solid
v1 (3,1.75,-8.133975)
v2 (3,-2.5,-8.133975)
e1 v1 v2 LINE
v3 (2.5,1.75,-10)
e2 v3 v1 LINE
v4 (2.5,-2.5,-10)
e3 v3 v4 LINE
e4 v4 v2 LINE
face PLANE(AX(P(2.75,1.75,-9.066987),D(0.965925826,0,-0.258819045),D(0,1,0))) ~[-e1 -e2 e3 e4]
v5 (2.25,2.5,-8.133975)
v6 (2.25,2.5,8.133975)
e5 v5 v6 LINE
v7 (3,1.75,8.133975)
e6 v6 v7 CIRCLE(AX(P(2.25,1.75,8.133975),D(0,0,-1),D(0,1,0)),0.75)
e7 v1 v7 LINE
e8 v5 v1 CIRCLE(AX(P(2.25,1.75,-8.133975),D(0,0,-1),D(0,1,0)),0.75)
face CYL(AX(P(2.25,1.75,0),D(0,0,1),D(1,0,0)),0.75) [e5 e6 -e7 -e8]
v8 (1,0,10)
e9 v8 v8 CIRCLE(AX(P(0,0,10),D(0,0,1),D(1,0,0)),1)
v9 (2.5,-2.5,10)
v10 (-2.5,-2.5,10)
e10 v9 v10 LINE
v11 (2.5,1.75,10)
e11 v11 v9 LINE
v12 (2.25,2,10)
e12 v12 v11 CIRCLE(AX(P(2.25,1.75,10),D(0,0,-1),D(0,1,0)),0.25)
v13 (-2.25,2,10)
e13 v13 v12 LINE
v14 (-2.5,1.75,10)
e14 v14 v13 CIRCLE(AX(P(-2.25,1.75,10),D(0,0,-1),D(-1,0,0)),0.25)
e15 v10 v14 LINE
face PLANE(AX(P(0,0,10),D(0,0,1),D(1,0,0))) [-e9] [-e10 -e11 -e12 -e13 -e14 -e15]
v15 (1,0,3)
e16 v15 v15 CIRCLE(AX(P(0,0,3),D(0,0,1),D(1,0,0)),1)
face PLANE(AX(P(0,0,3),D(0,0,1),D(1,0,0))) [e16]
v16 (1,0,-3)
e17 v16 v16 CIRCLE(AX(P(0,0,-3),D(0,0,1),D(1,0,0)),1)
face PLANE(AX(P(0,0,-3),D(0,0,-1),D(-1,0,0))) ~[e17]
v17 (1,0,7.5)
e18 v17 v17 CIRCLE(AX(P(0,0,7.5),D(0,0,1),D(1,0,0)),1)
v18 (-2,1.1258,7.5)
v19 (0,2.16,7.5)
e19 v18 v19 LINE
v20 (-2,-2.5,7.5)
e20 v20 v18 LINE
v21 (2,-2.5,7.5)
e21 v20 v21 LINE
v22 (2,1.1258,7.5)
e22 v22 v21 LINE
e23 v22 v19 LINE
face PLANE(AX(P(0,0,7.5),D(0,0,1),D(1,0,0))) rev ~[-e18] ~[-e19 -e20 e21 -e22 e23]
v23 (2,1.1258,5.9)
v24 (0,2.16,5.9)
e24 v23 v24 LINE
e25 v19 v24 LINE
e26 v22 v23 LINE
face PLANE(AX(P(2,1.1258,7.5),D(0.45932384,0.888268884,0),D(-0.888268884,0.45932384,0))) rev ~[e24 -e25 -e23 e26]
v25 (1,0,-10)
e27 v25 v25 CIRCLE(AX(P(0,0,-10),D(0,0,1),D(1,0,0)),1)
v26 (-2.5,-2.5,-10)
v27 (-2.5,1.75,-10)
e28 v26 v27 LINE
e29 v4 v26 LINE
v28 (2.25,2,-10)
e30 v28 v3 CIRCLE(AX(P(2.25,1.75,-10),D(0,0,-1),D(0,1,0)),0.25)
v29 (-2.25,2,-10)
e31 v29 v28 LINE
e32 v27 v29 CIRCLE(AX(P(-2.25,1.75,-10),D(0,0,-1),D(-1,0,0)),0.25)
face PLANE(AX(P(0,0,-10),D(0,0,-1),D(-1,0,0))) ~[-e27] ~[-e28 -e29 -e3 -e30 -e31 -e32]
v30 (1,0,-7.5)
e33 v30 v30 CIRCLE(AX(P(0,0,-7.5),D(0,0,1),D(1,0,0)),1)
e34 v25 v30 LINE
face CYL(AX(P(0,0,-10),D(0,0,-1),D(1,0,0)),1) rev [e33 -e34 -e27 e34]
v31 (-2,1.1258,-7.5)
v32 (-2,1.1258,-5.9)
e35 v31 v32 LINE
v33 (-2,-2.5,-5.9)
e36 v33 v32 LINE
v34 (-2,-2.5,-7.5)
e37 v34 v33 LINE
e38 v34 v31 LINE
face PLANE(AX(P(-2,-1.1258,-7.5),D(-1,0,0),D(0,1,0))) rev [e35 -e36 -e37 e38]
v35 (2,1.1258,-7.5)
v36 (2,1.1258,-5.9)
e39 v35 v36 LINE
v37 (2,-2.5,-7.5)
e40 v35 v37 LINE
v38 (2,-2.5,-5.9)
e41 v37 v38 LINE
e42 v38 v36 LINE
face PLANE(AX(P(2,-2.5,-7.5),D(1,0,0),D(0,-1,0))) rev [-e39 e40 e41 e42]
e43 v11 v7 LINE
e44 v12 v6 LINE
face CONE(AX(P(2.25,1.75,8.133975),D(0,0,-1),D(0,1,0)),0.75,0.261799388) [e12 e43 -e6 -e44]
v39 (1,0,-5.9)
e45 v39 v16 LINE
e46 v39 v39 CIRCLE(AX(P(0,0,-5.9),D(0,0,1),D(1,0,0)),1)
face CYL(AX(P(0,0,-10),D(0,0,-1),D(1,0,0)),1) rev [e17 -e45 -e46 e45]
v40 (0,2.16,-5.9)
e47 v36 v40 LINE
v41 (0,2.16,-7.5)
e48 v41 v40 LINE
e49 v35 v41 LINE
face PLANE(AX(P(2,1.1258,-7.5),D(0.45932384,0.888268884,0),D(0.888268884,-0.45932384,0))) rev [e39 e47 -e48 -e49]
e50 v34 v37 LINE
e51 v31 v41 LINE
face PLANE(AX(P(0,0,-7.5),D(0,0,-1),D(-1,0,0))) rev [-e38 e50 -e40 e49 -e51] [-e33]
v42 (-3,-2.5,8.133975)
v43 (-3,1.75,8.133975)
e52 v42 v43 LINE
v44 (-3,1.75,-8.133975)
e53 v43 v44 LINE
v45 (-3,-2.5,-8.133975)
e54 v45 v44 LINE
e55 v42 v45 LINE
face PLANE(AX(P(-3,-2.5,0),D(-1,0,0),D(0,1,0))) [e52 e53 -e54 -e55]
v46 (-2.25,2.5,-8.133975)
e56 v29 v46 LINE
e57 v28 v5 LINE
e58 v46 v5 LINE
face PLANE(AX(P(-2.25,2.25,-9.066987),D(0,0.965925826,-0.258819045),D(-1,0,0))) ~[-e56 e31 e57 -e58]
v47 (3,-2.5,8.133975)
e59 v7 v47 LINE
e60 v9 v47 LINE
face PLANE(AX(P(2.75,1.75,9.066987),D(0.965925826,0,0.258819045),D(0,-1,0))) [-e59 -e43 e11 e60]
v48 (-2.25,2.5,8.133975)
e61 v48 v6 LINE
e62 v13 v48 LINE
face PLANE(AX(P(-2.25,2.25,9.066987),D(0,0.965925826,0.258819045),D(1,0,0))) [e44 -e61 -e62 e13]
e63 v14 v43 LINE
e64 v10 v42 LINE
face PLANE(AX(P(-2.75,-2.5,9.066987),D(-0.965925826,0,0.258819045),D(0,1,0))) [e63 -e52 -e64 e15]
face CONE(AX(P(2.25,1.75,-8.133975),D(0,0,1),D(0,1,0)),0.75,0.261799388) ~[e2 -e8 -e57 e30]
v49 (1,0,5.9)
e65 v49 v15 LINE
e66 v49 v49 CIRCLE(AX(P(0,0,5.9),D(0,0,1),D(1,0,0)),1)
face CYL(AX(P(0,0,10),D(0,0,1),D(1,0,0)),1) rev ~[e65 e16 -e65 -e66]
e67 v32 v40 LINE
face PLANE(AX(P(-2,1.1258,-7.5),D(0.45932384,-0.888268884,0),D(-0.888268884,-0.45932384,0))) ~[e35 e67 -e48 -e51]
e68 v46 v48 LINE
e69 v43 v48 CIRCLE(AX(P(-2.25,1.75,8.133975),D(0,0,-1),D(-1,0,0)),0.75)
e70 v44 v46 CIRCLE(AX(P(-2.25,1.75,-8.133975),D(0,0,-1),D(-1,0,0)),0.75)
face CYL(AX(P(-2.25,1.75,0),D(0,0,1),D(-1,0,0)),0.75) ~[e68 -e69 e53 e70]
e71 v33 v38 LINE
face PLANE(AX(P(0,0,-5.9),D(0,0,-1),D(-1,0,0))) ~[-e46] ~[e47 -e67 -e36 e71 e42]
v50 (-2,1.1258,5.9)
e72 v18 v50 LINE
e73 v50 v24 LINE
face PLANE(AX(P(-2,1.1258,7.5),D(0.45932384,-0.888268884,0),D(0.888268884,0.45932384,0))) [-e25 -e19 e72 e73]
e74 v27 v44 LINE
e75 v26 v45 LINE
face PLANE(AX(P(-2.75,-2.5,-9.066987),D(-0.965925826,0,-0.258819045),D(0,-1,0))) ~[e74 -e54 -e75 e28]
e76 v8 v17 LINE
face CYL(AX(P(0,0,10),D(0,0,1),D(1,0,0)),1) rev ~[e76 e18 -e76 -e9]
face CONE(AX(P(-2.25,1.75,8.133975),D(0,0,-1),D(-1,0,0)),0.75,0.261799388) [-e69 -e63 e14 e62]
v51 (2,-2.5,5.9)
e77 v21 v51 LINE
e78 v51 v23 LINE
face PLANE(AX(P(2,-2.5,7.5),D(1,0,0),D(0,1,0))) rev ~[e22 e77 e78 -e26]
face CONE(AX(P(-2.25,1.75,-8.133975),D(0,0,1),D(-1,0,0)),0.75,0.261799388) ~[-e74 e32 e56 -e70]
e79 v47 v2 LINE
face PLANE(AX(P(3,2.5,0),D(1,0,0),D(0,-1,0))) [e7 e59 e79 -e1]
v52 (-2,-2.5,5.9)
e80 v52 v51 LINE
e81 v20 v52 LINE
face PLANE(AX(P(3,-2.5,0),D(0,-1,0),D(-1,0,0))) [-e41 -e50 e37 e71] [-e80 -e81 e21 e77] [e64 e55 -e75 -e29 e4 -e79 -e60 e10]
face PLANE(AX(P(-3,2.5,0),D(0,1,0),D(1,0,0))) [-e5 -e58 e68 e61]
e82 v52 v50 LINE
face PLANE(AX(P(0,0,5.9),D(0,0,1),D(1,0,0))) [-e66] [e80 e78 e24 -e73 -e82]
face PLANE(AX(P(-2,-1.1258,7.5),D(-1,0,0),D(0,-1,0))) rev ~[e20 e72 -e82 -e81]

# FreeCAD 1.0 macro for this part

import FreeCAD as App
import Part
import Sketcher
from FreeCAD import Vector
Q = App.Units.Quantity


def edges_at(feature, points):
    """Names of the edges that pass closest to the given points."""
    edges = feature.Shape.Edges
    near = lambda p: min(range(len(edges)), key=lambda i: edges[i].distToShape(Part.Vertex(*p))[0])
    return sorted({f"Edge{near(p) + 1}" for p in points})

doc = App.newDocument("Part")
params = doc.addObject("Spreadsheet::Sheet", "Params")
for row, (alias, value) in enumerate([
    ("sketch1_width", "6 mm"),
    ("sketch1_height", "5 mm"),
    ("pad1_length", "10 mm"),
    ("sketch2_diameter", "2 mm"),
    ("pocket1_length", "7 mm"),
    ("sketch3_width", "4 mm"),
    ("pocket2_length", "1.6 mm"),
    ("fillet_radius", "0.75 mm"),
    ("chamfer_size", "0.5 mm"),
], start=1):
    params.set(f"A{row}", alias)
    params.set(f"B{row}", "=" + value)
    params.setAlias(f"B{row}", alias)

body = doc.addObject("PartDesign::Body", "Body")

# Sketch on XY plane
sketch1 = body.newObject("Sketcher::SketchObject", "Sketch")
sketch1.AttachmentSupport = (doc.getObject("XY_Plane"), [""])
sketch1.MapMode = "FlatFace"
sketch1.addGeometry([
    Part.LineSegment(Vector(-3, -2.5, 0), Vector(3, -2.5, 0)),
    Part.LineSegment(Vector(3, -2.5, 0), Vector(3, 2.5, 0)),
    Part.LineSegment(Vector(3, 2.5, 0), Vector(-3, 2.5, 0)),
    Part.LineSegment(Vector(-3, 2.5, 0), Vector(-3, -2.5, 0)),
], False)
sketch1.addConstraint([
    Sketcher.Constraint("Coincident", 0, 2, 1, 1),
    Sketcher.Constraint("Coincident", 1, 2, 2, 1),
    Sketcher.Constraint("Coincident", 2, 2, 3, 1),
    Sketcher.Constraint("Coincident", 3, 2, 0, 1),
    Sketcher.Constraint("Horizontal", 0),
    Sketcher.Constraint("Vertical", 1),
    Sketcher.Constraint("Horizontal", 2),
    Sketcher.Constraint("Vertical", 3),
    Sketcher.Constraint("Symmetric", 0, 2, 2, 2, -1, 1),
    Sketcher.Constraint("DistanceX", 0, 1, 0, 2, Q("6 mm")),
    Sketcher.Constraint("DistanceY", 1, 1, 1, 2, Q("5 mm")),
])
sketch1.setExpression("Constraints[9]", "Params.sketch1_width")
sketch1.setExpression("Constraints[10]", "Params.sketch1_height")
pad1 = body.newObject("PartDesign::Pad", "Pad")
pad1.Profile = sketch1
pad1.setExpression("Length", "Params.pad1_length")

# Sketch on XY plane
sketch2 = body.newObject("Sketcher::SketchObject", "Sketch001")
sketch2.AttachmentSupport = (doc.getObject("XY_Plane"), [""])
sketch2.MapMode = "FlatFace"
sketch2.AttachmentOffset = App.Placement(Vector(0, 0, 10), App.Rotation())
sketch2.addGeometry(Part.Circle(Vector(0, 0, 0), Vector(0, 0, 1), 1), False)
sketch2.addConstraint([
    Sketcher.Constraint("Coincident", 0, 3, -1, 1),
    Sketcher.Constraint("Diameter", 0, Q("2 mm")),
])
sketch2.setExpression("Constraints[1]", "Params.sketch2_diameter")
pocket1 = body.newObject("PartDesign::Pocket", "Pocket")
pocket1.Profile = sketch2
pocket1.setExpression("Length", "Params.pocket1_length")

# Sketch on XY plane
sketch3 = body.newObject("Sketcher::SketchObject", "Sketch002")
sketch3.AttachmentSupport = (doc.getObject("XY_Plane"), [""])
sketch3.MapMode = "FlatFace"
sketch3.AttachmentOffset = App.Placement(Vector(0, 0, 7.5), App.Rotation())
sketch3.addGeometry([
    Part.LineSegment(Vector(2, -2.5, 0), Vector(2, 1.1258, 0)),  # 0
    Part.LineSegment(Vector(2, 1.1258, 0), Vector(0, 2.16, 0)),  # 1
    Part.LineSegment(Vector(0, 2.16, 0), Vector(-2, 1.1258, 0)),  # 2
    Part.LineSegment(Vector(-2, 1.1258, 0), Vector(-2, -2.5, 0)),  # 3
    Part.LineSegment(Vector(-2, -2.5, 0), Vector(2, -2.5, 0)),  # 4
], False)
sketch3.addConstraint([
    Sketcher.Constraint("Coincident", 0, 2, 1, 1),
    Sketcher.Constraint("Coincident", 1, 2, 2, 1),
    Sketcher.Constraint("Coincident", 2, 2, 3, 1),
    Sketcher.Constraint("Coincident", 3, 2, 4, 1),
    Sketcher.Constraint("Coincident", 4, 2, 0, 1),
    Sketcher.Constraint("Vertical", 0),
    Sketcher.Constraint("Vertical", 3),
    Sketcher.Constraint("Horizontal", 4),
    Sketcher.Constraint("Symmetric", 0, 2, 2, 2, -2),
    Sketcher.Constraint("PointOnObject", 1, 2, -2),
    Sketcher.Constraint("DistanceX", 4, 1, 4, 2, Q("4 mm")),
    Sketcher.Constraint("DistanceY", 3, 2, -1, 1, Q("2.5 mm")),
    Sketcher.Constraint("DistanceY", -1, 1, 1, 2, Q("2.16 mm")),
    Sketcher.Constraint("DistanceY", 0, 1, 0, 2, Q("3.6258 mm")),
])
sketch3.setExpression("Constraints[10]", "Params.sketch3_width")
pocket2 = body.newObject("PartDesign::Pocket", "Pocket001")
pocket2.Profile = sketch3
pocket2.setExpression("Length", "Params.pocket2_length")
doc.recompute()

fillet = body.newObject("PartDesign::Fillet", "Fillet")
fillet.Base = (pocket2, edges_at(pocket2, [(-3, 2.5, 5), (3, 2.5, 5)]))
fillet.setExpression("Radius", "Params.fillet_radius")
doc.recompute()

chamfer = body.newObject("PartDesign::Chamfer", "Chamfer")
chamfer.Base = (fillet, edges_at(fillet, [(3, -0.375, 10), (-3, -0.375, 10)]))
chamfer.ChamferType = "Distance and Angle"
chamfer.setExpression("Size", "Params.chamfer_size")
chamfer.Angle = 75
doc.recompute()

mirrored = body.newObject("PartDesign::Mirrored", "Mirrored")
mirrored.TransformMode = "Transform body"
mirrored.MirrorPlane = (doc.getObject("XY_Plane"), [""])
body.Tip = mirrored

doc.recompute()
